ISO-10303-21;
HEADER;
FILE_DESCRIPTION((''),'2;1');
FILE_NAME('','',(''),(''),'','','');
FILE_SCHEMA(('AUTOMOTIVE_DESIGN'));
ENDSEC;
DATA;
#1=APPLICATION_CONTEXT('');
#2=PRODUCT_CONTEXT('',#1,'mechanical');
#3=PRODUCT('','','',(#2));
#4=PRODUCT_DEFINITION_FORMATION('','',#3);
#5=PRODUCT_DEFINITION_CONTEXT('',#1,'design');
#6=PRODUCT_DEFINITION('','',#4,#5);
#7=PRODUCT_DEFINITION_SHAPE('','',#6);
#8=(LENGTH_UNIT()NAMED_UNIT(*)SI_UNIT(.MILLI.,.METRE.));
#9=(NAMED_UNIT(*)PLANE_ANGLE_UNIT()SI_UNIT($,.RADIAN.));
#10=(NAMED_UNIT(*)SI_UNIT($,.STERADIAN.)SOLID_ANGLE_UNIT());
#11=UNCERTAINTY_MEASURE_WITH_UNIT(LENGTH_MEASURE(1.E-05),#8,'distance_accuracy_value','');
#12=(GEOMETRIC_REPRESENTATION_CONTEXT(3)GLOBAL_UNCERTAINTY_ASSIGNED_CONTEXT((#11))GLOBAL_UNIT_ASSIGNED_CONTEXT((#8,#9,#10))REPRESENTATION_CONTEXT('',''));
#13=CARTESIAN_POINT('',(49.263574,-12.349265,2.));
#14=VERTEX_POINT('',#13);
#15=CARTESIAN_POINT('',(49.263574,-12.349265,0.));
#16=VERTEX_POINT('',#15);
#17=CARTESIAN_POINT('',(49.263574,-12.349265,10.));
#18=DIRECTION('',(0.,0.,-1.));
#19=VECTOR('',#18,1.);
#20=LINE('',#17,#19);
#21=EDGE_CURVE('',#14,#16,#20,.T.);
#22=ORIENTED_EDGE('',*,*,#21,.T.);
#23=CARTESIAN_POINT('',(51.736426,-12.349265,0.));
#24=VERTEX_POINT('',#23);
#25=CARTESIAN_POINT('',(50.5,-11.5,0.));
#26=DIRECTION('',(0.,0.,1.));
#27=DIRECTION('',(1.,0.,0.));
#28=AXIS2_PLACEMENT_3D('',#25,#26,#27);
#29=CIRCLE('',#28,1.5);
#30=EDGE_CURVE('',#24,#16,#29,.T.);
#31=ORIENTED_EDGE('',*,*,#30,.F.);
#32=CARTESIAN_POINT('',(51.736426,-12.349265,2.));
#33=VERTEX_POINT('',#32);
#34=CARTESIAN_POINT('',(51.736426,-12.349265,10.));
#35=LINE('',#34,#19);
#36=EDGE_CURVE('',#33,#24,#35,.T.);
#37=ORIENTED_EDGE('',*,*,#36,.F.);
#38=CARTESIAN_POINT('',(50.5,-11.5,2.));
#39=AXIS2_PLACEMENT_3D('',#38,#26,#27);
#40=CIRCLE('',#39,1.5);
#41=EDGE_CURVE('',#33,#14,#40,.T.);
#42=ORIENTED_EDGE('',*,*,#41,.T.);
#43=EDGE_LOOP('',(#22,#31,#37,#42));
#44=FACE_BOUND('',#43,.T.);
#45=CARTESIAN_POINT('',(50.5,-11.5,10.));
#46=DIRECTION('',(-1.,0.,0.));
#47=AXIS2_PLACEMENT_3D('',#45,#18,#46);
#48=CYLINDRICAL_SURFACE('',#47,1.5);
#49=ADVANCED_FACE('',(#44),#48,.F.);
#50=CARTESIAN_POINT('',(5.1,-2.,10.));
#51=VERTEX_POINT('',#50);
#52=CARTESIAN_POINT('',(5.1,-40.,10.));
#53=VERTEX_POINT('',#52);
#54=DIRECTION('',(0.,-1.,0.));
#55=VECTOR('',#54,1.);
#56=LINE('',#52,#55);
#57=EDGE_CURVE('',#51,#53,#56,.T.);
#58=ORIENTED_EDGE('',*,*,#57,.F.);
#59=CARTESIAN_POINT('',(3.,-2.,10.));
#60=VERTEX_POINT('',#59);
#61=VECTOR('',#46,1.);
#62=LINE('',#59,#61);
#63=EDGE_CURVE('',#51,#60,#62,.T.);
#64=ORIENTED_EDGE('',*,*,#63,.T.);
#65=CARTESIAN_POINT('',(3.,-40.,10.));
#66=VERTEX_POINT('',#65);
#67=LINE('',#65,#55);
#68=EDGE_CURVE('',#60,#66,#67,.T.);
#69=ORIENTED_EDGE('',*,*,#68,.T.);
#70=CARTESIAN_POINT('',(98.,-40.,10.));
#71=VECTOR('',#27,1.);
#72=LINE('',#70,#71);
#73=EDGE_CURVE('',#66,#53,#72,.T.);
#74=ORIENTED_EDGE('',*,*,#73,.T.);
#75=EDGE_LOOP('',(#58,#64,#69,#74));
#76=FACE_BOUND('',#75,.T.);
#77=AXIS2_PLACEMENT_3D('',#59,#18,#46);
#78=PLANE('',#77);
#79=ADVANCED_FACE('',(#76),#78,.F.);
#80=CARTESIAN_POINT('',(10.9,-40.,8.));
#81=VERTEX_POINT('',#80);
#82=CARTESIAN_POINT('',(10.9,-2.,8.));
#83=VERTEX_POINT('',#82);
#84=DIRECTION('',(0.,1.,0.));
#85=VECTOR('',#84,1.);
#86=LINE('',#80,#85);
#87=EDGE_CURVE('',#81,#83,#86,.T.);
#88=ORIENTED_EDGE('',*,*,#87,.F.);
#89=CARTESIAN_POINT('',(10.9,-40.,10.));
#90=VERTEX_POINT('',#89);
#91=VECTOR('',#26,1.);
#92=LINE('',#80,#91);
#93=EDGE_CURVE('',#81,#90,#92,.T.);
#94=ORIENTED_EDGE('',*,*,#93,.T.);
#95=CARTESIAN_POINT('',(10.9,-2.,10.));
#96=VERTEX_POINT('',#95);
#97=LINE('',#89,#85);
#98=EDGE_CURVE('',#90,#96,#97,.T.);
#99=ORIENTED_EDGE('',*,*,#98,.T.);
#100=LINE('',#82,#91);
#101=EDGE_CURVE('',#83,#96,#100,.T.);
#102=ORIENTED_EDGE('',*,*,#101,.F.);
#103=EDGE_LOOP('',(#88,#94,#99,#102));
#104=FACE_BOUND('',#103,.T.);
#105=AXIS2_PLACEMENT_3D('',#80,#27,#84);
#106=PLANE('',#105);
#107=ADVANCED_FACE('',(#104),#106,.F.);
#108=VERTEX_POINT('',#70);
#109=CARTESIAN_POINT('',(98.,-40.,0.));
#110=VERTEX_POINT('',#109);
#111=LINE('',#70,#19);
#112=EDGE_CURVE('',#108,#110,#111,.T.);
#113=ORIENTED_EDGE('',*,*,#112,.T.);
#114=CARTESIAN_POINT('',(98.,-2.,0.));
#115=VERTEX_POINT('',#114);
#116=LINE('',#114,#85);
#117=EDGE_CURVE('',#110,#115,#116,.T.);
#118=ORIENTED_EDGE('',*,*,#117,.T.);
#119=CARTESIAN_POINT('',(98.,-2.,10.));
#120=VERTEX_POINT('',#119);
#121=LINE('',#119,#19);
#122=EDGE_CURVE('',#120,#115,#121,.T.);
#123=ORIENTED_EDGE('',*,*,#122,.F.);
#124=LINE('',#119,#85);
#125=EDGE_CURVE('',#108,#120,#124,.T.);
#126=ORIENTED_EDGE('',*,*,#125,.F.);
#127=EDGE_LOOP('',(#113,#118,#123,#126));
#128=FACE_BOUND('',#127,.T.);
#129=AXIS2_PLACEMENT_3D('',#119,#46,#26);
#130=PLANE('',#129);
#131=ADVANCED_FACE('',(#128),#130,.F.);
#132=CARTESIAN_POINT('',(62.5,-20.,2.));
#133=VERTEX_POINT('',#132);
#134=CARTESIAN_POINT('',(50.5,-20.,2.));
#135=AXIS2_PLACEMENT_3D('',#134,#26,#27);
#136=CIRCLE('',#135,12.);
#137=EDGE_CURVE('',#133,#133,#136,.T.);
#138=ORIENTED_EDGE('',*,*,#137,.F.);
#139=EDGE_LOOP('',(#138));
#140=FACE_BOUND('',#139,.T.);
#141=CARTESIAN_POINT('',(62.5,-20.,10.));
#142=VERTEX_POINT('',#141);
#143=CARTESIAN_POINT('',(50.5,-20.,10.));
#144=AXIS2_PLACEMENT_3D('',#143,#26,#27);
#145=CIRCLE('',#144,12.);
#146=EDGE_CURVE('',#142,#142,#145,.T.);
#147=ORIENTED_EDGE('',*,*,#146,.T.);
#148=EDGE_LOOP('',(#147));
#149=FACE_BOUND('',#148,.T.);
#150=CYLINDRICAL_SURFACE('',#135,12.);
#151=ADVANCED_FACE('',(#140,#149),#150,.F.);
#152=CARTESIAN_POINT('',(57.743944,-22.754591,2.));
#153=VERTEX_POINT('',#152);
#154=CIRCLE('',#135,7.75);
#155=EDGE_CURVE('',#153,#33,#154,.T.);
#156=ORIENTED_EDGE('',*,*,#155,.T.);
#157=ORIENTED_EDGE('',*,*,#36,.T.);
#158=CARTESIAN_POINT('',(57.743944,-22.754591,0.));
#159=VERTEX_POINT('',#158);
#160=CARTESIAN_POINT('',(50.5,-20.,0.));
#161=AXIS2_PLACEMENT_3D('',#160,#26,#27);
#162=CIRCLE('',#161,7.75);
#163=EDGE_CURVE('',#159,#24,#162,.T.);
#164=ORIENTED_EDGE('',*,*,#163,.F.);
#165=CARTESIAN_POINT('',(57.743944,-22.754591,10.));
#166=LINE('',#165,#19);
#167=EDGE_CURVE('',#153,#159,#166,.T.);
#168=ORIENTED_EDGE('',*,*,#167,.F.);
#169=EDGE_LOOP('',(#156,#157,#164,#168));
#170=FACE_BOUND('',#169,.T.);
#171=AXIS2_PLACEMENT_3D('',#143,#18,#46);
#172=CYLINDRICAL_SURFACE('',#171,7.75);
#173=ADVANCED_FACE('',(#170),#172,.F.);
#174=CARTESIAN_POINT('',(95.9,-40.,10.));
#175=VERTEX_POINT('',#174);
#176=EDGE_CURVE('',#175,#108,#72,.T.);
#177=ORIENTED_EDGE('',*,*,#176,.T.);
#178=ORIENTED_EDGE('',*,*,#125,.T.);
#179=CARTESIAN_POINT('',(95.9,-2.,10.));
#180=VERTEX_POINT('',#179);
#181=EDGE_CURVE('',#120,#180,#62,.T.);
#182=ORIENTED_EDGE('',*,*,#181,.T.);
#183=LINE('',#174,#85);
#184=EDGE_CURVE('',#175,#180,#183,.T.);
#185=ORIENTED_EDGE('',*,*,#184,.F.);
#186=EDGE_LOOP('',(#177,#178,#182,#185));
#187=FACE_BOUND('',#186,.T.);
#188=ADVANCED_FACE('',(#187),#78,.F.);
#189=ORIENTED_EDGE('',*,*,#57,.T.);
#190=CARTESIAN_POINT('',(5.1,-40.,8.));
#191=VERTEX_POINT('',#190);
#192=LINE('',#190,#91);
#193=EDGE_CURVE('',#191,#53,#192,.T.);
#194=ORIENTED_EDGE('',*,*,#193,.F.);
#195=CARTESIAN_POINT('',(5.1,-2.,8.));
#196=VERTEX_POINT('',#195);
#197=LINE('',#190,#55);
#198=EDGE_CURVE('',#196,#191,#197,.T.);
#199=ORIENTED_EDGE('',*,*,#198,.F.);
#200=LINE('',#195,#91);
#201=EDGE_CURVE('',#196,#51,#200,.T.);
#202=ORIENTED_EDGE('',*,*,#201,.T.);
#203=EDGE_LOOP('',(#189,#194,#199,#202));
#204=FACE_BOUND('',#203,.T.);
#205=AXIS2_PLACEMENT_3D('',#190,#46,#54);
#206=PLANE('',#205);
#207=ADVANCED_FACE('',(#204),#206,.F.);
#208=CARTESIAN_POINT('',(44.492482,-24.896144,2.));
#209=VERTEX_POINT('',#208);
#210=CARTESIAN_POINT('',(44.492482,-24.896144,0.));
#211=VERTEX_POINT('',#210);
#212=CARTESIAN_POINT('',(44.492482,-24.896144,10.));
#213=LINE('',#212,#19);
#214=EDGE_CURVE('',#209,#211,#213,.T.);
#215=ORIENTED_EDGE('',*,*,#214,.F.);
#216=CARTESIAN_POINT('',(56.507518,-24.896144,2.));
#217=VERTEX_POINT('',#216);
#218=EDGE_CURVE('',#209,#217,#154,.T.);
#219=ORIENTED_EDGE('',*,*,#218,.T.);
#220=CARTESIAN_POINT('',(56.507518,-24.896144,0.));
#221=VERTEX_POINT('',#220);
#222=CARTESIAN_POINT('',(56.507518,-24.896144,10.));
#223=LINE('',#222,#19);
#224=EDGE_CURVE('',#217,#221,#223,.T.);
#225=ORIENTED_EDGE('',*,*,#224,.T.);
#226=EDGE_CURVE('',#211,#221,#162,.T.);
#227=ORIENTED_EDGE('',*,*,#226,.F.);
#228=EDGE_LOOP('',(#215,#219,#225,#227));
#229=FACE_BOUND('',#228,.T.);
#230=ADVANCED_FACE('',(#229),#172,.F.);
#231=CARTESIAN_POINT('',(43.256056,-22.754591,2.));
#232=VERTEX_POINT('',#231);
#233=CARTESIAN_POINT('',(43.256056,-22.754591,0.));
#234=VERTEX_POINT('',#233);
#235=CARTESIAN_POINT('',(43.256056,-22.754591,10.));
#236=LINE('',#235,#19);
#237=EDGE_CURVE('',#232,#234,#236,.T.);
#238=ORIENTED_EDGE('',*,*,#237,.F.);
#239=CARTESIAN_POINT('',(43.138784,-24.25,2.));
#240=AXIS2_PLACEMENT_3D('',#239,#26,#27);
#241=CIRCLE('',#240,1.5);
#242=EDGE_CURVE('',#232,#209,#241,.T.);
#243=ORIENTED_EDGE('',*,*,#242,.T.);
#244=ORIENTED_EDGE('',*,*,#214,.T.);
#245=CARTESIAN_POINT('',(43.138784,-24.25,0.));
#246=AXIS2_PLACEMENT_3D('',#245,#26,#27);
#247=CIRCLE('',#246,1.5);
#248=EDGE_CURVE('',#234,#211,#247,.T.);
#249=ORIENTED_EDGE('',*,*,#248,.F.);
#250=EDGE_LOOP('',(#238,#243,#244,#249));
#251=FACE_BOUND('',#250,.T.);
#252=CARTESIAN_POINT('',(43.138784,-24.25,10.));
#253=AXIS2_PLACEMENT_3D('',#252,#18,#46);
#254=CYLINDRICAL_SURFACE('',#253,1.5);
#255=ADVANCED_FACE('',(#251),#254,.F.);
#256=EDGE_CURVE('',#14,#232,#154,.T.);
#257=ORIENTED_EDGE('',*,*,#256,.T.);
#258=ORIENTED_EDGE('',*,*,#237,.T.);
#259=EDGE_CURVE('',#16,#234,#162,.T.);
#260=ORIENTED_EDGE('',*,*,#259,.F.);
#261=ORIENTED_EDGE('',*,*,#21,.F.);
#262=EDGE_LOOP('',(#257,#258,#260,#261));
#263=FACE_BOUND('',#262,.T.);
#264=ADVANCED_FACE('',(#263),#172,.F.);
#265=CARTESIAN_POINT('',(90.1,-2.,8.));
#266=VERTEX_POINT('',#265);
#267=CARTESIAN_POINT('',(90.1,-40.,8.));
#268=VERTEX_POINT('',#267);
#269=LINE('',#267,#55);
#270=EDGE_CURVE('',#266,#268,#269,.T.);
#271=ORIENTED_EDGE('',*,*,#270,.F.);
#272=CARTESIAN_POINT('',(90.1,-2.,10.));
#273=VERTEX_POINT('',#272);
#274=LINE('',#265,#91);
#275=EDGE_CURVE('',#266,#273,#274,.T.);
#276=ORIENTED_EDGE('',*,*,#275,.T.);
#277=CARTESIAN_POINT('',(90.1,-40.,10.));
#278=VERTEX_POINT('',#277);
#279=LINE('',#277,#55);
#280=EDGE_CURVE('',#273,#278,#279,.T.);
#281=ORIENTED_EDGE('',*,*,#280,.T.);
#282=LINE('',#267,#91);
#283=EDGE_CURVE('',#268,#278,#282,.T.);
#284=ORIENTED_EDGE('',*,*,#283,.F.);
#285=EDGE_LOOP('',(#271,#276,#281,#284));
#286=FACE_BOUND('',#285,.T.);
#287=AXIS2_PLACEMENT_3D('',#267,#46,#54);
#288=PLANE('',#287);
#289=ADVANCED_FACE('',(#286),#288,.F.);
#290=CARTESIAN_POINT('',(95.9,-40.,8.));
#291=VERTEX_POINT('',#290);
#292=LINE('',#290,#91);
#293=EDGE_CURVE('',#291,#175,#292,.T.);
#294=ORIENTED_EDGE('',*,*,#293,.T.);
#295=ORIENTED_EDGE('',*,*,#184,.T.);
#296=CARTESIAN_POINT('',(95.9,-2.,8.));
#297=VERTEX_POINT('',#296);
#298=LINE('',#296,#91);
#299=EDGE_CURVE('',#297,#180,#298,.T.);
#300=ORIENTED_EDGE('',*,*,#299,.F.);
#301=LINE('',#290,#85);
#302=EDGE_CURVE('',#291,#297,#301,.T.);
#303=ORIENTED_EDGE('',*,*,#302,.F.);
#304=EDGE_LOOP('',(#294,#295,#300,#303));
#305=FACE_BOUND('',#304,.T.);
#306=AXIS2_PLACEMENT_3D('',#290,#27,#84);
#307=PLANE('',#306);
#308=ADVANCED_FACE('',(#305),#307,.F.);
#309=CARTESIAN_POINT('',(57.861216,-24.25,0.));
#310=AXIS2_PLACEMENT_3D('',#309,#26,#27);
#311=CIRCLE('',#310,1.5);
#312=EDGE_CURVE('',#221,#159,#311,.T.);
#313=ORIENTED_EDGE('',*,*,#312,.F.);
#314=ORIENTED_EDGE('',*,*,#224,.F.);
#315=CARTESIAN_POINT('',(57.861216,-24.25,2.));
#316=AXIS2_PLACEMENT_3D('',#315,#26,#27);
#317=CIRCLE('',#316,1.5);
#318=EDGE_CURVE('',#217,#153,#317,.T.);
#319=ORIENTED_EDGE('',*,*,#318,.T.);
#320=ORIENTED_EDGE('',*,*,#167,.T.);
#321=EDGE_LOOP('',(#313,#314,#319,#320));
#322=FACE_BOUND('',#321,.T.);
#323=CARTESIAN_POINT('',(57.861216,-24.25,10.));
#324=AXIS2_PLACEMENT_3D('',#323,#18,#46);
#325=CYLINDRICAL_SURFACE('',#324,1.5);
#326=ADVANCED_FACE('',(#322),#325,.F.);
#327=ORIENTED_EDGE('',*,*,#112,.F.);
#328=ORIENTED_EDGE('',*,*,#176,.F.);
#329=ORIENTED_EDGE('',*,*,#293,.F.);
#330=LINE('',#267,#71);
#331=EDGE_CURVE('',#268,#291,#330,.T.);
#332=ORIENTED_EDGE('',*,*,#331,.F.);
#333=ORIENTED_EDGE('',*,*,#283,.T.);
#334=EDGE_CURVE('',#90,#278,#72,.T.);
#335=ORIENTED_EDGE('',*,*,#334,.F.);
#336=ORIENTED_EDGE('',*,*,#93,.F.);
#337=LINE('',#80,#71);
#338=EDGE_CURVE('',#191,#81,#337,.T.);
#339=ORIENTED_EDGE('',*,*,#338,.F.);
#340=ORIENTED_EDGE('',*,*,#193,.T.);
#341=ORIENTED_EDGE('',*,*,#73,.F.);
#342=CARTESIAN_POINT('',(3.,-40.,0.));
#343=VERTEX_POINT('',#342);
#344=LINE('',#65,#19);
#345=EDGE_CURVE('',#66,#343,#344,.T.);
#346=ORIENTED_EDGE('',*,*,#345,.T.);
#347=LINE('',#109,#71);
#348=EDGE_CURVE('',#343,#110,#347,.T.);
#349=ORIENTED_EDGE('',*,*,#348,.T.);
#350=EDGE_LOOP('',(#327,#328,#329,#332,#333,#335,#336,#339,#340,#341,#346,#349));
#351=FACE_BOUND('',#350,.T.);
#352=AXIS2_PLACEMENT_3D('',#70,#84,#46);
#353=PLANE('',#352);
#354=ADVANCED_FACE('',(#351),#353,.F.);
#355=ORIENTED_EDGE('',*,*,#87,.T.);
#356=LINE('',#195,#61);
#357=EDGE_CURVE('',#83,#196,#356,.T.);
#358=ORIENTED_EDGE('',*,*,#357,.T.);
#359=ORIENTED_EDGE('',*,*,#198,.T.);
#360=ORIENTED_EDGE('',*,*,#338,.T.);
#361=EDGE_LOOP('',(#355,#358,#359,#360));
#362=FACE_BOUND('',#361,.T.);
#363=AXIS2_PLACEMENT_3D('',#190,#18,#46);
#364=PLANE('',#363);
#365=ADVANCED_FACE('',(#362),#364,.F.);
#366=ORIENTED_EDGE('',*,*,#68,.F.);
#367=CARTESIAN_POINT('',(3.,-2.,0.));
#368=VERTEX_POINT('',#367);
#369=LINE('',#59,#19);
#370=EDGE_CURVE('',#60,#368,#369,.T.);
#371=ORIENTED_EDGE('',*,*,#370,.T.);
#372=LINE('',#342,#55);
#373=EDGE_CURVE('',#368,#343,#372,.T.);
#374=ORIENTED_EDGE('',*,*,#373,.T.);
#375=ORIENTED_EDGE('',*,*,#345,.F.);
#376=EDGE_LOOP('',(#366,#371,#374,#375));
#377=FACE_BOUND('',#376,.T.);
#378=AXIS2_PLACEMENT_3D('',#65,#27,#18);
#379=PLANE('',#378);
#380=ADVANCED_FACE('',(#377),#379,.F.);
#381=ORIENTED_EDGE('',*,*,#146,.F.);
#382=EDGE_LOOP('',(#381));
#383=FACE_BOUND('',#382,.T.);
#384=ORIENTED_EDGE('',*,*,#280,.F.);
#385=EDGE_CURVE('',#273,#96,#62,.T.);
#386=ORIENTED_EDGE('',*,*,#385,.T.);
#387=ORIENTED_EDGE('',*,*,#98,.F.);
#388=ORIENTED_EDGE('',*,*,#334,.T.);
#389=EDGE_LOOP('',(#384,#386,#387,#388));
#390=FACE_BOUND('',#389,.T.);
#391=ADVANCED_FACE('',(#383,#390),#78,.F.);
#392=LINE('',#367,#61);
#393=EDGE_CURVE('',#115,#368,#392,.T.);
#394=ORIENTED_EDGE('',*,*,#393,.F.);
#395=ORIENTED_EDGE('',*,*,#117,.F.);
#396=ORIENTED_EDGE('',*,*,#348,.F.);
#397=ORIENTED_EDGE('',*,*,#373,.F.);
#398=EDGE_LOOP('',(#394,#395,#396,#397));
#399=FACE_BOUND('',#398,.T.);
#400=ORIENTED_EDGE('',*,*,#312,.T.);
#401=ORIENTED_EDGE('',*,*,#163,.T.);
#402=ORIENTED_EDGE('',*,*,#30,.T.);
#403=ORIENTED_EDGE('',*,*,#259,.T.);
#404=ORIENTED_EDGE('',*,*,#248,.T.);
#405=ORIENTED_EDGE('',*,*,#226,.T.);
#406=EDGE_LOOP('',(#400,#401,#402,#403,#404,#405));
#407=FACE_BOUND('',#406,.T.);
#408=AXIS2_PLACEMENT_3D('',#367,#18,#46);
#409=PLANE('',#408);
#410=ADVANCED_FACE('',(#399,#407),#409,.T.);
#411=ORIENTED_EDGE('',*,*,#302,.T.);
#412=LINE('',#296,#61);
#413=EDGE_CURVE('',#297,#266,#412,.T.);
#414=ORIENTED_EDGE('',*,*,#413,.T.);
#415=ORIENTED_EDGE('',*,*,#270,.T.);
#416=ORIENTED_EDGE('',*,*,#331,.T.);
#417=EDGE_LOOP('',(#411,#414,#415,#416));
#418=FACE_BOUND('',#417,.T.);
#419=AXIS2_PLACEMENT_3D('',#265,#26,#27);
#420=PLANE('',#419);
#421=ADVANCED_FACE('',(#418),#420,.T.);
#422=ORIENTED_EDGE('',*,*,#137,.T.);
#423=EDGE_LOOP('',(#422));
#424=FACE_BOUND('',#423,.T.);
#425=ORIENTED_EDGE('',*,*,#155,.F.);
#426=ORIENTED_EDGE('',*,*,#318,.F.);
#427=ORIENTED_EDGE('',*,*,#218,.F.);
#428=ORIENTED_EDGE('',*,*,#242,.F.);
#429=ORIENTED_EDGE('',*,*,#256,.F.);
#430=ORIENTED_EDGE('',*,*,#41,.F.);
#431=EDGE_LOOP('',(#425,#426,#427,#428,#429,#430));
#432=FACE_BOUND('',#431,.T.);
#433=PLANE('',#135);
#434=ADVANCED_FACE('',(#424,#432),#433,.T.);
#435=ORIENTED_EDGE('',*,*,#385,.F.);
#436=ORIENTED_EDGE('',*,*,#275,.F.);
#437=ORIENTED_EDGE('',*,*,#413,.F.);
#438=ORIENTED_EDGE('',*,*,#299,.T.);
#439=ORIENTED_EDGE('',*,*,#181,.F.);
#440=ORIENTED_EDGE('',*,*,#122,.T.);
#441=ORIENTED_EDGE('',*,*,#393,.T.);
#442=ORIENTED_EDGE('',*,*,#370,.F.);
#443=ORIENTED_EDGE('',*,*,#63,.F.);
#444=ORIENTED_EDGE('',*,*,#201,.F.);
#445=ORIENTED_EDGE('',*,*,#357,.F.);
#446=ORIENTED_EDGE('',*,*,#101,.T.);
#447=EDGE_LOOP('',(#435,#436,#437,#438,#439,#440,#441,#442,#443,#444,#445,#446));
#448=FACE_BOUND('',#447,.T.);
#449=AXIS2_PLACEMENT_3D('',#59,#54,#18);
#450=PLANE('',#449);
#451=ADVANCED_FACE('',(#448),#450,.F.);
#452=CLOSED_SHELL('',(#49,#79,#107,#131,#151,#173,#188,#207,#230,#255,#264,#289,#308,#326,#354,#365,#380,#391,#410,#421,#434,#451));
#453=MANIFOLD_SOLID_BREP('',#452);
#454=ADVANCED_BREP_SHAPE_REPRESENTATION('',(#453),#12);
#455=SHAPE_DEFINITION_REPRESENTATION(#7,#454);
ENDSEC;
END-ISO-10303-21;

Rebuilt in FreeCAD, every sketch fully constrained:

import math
import FreeCAD as App
import Part
import Sketcher


def add_polygon(sketch, points):
    """Adds a closed chain of lines whose ends are joined by coincident constraints."""
    first, n = sketch.GeometryCount, len(points)
    for a, b in zip(points, points[1:] + points[:1]):
        sketch.addGeometry(Part.LineSegment(App.Vector(*a, 0), App.Vector(*b, 0)), False)
    for i in range(n):
        sketch.addConstraint(Sketcher.Constraint("Coincident", first + i, 2, first + (i + 1) % n, 1))

doc = App.newDocument("Part")
body = doc.addObject("PartDesign::Body", "Body")

# Sketch on XY plane
sketch1 = body.newObject("Sketcher::SketchObject", "Sketch")
sketch1.AttachmentSupport = (doc.getObject("XY_Plane"), [""])
sketch1.MapMode = "FlatFace"
add_polygon(sketch1, [(3, -2), (3, -40), (98, -40), (98, -2)])  # lines 0-3
sketch1.addGeometry(Part.ArcOfCircle(Part.Circle(App.Vector(50.5, -20, 0), App.Vector(0, 0, 1), 7.75), math.radians(99.18013), math.radians(200.81987)), False)  # 4
sketch1.addGeometry(Part.ArcOfCircle(Part.Circle(App.Vector(50.5, -11.5, 0), App.Vector(0, 0, 1), 1.5), math.radians(-34.484027), math.radians(214.484027)), False)  # 5
sketch1.addGeometry(Part.ArcOfCircle(Part.Circle(App.Vector(50.5, -20, 0), App.Vector(0, 0, 1), 7.75), math.radians(-20.81987), math.radians(80.81987)), False)  # 6
sketch1.addGeometry(Part.ArcOfCircle(Part.Circle(App.Vector(57.861216, -24.25, 0), App.Vector(0, 0, 1), 1.5), math.radians(-154.484027), math.radians(94.484027)), False)  # 7
sketch1.addGeometry(Part.ArcOfCircle(Part.Circle(App.Vector(50.5, -20, 0), App.Vector(0, 0, 1), 7.75), math.radians(-140.81987), math.radians(-39.18013)), False)  # 8
sketch1.addGeometry(Part.ArcOfCircle(Part.Circle(App.Vector(43.138784, -24.25, 0), App.Vector(0, 0, 1), 1.5), math.radians(85.515973), math.radians(334.484027)), False)  # 9
sketch1.addConstraint([
    Sketcher.Constraint("Coincident", 4, 1, 5, 2),
    Sketcher.Constraint("Coincident", 5, 1, 6, 2),
    Sketcher.Constraint("Coincident", 6, 1, 7, 2),
    Sketcher.Constraint("Coincident", 7, 1, 8, 2),
    Sketcher.Constraint("Coincident", 8, 1, 9, 2),
    Sketcher.Constraint("Coincident", 9, 1, 4, 2),
    Sketcher.Constraint("Vertical", 0),
    Sketcher.Constraint("Horizontal", 1),
    Sketcher.Constraint("Vertical", 2),
    Sketcher.Constraint("Horizontal", 3),
    Sketcher.Constraint("Coincident", 6, 3, 4, 3),
    Sketcher.Constraint("Coincident", 8, 3, 4, 3),
    Sketcher.Constraint("Equal", 4, 6),
    Sketcher.Constraint("Equal", 5, 7),
    Sketcher.Constraint("Equal", 6, 8),
    Sketcher.Constraint("Equal", 7, 9),
    Sketcher.Constraint("Horizontal", 7, 3, 9, 3),
    Sketcher.Constraint("Horizontal", 4, 1, 5, 1),
    Sketcher.Constraint("Horizontal", 7, 1, 8, 1),
    Sketcher.Constraint("Radius", 5, 1.5),
    Sketcher.Constraint("DistanceX", 1, 1, 1, 2, 95.0),
    Sketcher.Constraint("DistanceY", 0, 2, 0, 1, 38.0),
    Sketcher.Constraint("Radius", 4, 7.75),
    Sketcher.Constraint("DistanceY", 4, 3, -1, 1, 20.0),
    Sketcher.Constraint("DistanceX", -1, 1, 0, 2, 3.0),
    Sketcher.Constraint("DistanceY", 0, 2, -1, 1, 40.0),
    Sketcher.Constraint("DistanceX", -1, 1, 4, 3, 50.5),
    Sketcher.Constraint("DistanceY", 5, 3, -1, 1, 11.5),
    Sketcher.Constraint("DistanceY", 7, 3, -1, 1, 24.25),
    Sketcher.Constraint("DistanceY", 6, 1, -1, 1, 22.754591),
])
pad1 = body.newObject("PartDesign::Pad", "Pad")
pad1.Profile = sketch1
pad1.Length = 10

# Sketch on XY plane
sketch2 = body.newObject("Sketcher::SketchObject", "Sketch001")
sketch2.AttachmentSupport = (doc.getObject("XY_Plane"), [""])
sketch2.MapMode = "FlatFace"
sketch2.AttachmentOffset = App.Placement(App.Vector(0, 0, 10), App.Rotation())
sketch2.addGeometry(Part.Circle(App.Vector(50.5, -20, 0), App.Vector(0, 0, 1), 12), False)
sketch2.addConstraint([
    Sketcher.Constraint("Diameter", 0, 24.0),
    Sketcher.Constraint("DistanceY", 0, 3, -1, 1, 20.0),
    Sketcher.Constraint("DistanceX", -1, 1, 0, 3, 50.5),
])
pocket1 = body.newObject("PartDesign::Pocket", "Pocket")
pocket1.Profile = sketch2
pocket1.Length = 8

# Sketch on XY plane
sketch3 = body.newObject("Sketcher::SketchObject", "Sketch002")
sketch3.AttachmentSupport = (doc.getObject("XY_Plane"), [""])
sketch3.MapMode = "FlatFace"
sketch3.AttachmentOffset = App.Placement(App.Vector(0, 0, 10), App.Rotation())
add_polygon(sketch3, [(5.1, -2), (5.1, -40), (10.9, -40), (10.9, -2)])  # lines 0-3
add_polygon(sketch3, [(90.1, -2), (90.1, -40), (95.9, -40), (95.9, -2)])  # lines 4-7
sketch3.addConstraint([
    Sketcher.Constraint("Vertical", 0),
    Sketcher.Constraint("Horizontal", 1),
    Sketcher.Constraint("Vertical", 2),
    Sketcher.Constraint("Horizontal", 3),
    Sketcher.Constraint("Vertical", 4),
    Sketcher.Constraint("Horizontal", 5),
    Sketcher.Constraint("Vertical", 6),
    Sketcher.Constraint("Horizontal", 7),
    Sketcher.Constraint("Horizontal", 1, 2, 4, 2),
    Sketcher.Constraint("Horizontal", 3, 2, 6, 2),
    Sketcher.Constraint("Equal", 3, 5),
    Sketcher.Constraint("DistanceY", 0, 2, 0, 1, 38.0),
    Sketcher.Constraint("DistanceX", 1, 1, 1, 2, 5.8),
    Sketcher.Constraint("DistanceY", 0, 2, -1, 1, 40.0),
    Sketcher.Constraint("DistanceX", 0, 2, 4, 2, 85.0),
    Sketcher.Constraint("DistanceX", -1, 1, 0, 2, 5.1),
])
pocket2 = body.newObject("PartDesign::Pocket", "Pocket001")
pocket2.Profile = sketch3
pocket2.Length = 2

doc.recompute()
